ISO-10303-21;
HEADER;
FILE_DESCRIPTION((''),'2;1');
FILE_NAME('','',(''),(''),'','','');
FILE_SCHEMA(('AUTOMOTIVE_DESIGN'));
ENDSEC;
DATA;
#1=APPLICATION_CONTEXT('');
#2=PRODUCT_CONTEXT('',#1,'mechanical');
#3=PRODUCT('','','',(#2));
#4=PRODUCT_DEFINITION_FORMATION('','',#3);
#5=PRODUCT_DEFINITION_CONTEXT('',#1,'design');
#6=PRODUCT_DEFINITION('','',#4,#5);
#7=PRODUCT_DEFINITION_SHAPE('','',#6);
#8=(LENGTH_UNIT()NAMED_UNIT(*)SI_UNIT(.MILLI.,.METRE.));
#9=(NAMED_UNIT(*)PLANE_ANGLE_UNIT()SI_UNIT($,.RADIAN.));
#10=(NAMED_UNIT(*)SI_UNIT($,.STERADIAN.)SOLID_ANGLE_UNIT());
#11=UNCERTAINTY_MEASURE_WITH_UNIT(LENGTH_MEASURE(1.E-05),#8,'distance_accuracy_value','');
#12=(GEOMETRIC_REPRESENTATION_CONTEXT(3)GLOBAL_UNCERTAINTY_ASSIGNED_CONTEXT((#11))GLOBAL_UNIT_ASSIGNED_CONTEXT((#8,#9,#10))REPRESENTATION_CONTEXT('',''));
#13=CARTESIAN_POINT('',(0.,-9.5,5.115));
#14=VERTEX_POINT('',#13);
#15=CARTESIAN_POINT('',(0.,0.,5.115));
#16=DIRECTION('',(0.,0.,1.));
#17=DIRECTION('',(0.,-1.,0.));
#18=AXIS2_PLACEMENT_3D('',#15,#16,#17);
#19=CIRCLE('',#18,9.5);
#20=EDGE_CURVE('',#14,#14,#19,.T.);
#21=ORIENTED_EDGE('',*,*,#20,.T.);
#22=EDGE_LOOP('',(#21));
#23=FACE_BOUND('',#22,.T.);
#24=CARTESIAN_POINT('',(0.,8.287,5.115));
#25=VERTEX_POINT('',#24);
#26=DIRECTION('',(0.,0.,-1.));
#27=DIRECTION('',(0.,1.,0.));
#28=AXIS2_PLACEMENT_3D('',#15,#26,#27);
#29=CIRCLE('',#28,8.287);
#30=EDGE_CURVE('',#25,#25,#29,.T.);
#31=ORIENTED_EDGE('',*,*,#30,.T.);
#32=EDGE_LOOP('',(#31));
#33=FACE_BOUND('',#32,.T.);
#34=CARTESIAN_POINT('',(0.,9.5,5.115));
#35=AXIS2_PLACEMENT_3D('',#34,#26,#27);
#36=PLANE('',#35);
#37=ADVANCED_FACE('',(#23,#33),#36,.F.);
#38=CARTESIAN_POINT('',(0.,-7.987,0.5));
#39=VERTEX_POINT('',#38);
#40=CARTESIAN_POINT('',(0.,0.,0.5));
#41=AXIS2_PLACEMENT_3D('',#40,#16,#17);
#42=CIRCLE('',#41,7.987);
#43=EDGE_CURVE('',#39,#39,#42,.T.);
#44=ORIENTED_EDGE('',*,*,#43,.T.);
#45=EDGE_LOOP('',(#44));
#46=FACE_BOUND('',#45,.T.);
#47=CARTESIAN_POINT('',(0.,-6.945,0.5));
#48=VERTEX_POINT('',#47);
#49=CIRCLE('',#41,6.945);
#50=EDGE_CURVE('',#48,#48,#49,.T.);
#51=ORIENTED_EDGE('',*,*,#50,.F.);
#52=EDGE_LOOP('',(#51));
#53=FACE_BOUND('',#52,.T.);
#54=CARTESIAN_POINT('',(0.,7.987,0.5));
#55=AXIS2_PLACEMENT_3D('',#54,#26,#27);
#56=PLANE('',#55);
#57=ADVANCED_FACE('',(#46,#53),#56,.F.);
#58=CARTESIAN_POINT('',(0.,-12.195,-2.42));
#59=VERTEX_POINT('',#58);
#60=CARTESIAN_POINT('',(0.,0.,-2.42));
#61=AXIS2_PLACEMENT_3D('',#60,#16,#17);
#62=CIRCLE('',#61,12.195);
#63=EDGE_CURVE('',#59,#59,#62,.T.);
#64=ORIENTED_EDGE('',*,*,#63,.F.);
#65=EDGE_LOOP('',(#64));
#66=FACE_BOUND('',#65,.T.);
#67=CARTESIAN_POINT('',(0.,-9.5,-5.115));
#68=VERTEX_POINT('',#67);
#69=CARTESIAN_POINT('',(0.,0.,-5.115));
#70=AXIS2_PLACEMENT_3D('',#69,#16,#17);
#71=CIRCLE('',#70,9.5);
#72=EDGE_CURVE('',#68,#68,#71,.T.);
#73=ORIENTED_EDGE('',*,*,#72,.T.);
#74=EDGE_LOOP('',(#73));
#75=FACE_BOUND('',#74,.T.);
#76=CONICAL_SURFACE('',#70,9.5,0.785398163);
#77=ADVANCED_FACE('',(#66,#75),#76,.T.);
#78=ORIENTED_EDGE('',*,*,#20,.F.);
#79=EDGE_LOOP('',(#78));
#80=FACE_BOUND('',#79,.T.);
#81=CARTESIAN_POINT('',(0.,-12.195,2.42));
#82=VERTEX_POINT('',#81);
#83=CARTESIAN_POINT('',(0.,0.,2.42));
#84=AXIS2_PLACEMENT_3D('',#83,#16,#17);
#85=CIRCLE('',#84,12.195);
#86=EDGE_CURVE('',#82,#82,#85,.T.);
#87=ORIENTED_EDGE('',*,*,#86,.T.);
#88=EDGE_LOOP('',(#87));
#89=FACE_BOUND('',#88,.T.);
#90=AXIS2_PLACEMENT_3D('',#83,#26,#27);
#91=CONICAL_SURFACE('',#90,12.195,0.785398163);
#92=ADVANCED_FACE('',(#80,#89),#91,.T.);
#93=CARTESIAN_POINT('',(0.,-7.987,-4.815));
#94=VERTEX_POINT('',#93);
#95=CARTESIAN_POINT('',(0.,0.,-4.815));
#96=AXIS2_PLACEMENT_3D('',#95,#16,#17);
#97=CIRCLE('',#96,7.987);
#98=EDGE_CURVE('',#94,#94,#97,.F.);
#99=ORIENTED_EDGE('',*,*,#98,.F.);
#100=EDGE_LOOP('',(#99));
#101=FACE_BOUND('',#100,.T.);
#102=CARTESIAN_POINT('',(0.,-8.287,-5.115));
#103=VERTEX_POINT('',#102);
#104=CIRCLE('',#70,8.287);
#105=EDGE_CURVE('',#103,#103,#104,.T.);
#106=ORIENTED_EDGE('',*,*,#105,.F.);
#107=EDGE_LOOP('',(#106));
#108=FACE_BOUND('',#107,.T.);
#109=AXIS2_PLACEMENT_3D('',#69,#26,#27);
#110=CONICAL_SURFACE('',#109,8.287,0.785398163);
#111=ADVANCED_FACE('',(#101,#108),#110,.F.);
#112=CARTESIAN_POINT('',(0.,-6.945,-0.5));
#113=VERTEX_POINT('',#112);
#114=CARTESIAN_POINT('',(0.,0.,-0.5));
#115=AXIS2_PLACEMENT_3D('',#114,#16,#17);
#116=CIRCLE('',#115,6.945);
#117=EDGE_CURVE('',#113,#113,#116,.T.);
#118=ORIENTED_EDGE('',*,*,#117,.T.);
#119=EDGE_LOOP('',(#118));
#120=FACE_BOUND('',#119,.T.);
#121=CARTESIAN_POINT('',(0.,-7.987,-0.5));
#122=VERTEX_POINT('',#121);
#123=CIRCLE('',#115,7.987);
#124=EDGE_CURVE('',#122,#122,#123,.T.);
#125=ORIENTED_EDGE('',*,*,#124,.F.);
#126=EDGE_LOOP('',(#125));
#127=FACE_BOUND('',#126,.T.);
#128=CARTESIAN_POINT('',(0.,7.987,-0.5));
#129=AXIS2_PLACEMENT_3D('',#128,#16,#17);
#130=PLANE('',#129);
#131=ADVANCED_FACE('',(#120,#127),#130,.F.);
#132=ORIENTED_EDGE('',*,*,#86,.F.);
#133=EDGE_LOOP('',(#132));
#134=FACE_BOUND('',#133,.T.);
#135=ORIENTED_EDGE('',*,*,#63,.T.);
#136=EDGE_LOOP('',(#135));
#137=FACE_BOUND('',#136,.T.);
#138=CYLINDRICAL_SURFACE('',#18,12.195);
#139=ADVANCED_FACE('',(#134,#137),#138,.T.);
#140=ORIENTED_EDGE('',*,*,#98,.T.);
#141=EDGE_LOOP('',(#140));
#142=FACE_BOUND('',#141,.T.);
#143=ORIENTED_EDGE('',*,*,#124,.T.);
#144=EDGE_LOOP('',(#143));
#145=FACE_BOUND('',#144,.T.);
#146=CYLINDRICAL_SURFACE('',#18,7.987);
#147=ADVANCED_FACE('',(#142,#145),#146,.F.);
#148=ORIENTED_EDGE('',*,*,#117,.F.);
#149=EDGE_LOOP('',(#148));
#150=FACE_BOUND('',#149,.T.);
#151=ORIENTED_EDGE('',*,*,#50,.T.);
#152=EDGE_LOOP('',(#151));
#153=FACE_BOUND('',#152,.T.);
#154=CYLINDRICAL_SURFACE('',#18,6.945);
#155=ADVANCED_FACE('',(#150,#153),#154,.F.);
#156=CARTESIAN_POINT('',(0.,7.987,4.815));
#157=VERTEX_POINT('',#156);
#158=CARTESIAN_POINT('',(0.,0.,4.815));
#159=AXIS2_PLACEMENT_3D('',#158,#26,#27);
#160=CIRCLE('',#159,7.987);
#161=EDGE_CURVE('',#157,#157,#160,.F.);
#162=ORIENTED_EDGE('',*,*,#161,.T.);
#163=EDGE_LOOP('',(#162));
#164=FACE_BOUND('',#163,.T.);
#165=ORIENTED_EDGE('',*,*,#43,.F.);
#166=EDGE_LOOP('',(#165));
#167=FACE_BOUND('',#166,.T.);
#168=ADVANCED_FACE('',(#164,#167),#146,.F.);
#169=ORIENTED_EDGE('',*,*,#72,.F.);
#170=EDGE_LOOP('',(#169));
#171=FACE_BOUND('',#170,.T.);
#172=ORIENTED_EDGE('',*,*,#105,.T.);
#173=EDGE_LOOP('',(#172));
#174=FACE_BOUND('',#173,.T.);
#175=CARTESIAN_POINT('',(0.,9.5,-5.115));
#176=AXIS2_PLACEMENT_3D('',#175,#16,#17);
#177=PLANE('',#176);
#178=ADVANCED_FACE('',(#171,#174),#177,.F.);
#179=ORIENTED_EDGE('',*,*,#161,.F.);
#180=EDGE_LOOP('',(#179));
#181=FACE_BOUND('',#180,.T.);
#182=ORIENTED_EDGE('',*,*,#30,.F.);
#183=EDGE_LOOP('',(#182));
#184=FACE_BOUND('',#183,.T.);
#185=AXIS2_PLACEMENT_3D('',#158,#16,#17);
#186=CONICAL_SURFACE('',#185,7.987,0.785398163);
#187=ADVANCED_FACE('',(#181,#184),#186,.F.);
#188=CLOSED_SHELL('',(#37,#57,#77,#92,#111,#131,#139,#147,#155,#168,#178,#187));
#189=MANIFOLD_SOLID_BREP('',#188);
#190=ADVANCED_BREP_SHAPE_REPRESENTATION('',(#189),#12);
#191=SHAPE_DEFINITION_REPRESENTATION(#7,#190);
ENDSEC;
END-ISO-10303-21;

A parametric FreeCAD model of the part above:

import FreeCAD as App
import Part
import Sketcher
from FreeCAD import Vector
Q = App.Units.Quantity


def edges_at(feature, points):
    """Names of the edges that pass closest to the given points."""
    edges = feature.Shape.Edges
    near = lambda p: min(range(len(edges)), key=lambda i: edges[i].distToShape(Part.Vertex(*p))[0])
    return sorted({f"Edge{near(p) + 1}" for p in points})


def add_polygon(sketch, points):
    """Adds a closed chain of lines whose ends are joined by coincident constraints."""
    first, n = sketch.GeometryCount, len(points)
    for a, b in zip(points, points[1:] + points[:1]):
        sketch.addGeometry(Part.LineSegment(App.Vector(*a, 0), App.Vector(*b, 0)), False)
    for i in range(n):
        sketch.addConstraint(Sketcher.Constraint("Coincident", first + i, 2, first + (i + 1) % n, 1))

doc = App.newDocument("Part")
body = doc.addObject("PartDesign::Body", "Body")

# Sketch on YZ plane
sketch1 = body.newObject("Sketcher::SketchObject", "Sketch")
sketch1.AttachmentSupport = (doc.getObject("YZ_Plane"), [""])
sketch1.MapMode = "FlatFace"
add_polygon(sketch1, [(12.2, -2.4), (12.2, 2.4), (9.5, 5.1), (8, 5.1), (8, 0.5), (6.9, 0.5), (6.9, -0.5), (8, -0.5), (8, -5.1), (9.5, -5.1)])  # lines 0-9
sketch1.addConstraint([
    Sketcher.Constraint("Vertical", 0),
    Sketcher.Constraint("Horizontal", 2),
    Sketcher.Constraint("Vertical", 3),
    Sketcher.Constraint("Horizontal", 4),
    Sketcher.Constraint("Vertical", 5),
    Sketcher.Constraint("Horizontal", 6),
    Sketcher.Constraint("Vertical", 7),
    Sketcher.Constraint("Horizontal", 8),
    Sketcher.Constraint("Symmetric", 3, 2, 6, 2, -1),
    Sketcher.Constraint("Symmetric", 1, 2, 8, 2, -1),
    Sketcher.Constraint("Perpendicular", 1, 9),
    Sketcher.Constraint("Equal", 1, 9),
    Sketcher.Constraint("DistanceY", 5, 2, 5, 1, Q("1 mm")),
    Sketcher.Constraint("DistanceY", 0, 1, 0, 2, Q("4.84 mm")),
    Sketcher.Constraint("DistanceX", -1, 1, 1, 2, Q("9.5 mm")),
    Sketcher.Constraint("DistanceX", 2, 2, 2, 1, Q("1.513 mm")),
    Sketcher.Constraint("DistanceX", 4, 2, 4, 1, Q("1.042 mm")),
    Sketcher.Constraint("DistanceY", 3, 2, 3, 1, Q("4.615 mm")),
])
revolution = body.newObject("PartDesign::Revolution", "Revolution")
revolution.Profile = sketch1
revolution.ReferenceAxis = (sketch1, ["V_Axis"])
revolution.Angle = 360
doc.recompute()

chamfer = body.newObject("PartDesign::Chamfer", "Chamfer")
chamfer.Base = (revolution, edges_at(revolution, [(0, -7.987, 5.115), (0, -7.987, -5.115)]))
chamfer.Size = 0.3

doc.recompute()
